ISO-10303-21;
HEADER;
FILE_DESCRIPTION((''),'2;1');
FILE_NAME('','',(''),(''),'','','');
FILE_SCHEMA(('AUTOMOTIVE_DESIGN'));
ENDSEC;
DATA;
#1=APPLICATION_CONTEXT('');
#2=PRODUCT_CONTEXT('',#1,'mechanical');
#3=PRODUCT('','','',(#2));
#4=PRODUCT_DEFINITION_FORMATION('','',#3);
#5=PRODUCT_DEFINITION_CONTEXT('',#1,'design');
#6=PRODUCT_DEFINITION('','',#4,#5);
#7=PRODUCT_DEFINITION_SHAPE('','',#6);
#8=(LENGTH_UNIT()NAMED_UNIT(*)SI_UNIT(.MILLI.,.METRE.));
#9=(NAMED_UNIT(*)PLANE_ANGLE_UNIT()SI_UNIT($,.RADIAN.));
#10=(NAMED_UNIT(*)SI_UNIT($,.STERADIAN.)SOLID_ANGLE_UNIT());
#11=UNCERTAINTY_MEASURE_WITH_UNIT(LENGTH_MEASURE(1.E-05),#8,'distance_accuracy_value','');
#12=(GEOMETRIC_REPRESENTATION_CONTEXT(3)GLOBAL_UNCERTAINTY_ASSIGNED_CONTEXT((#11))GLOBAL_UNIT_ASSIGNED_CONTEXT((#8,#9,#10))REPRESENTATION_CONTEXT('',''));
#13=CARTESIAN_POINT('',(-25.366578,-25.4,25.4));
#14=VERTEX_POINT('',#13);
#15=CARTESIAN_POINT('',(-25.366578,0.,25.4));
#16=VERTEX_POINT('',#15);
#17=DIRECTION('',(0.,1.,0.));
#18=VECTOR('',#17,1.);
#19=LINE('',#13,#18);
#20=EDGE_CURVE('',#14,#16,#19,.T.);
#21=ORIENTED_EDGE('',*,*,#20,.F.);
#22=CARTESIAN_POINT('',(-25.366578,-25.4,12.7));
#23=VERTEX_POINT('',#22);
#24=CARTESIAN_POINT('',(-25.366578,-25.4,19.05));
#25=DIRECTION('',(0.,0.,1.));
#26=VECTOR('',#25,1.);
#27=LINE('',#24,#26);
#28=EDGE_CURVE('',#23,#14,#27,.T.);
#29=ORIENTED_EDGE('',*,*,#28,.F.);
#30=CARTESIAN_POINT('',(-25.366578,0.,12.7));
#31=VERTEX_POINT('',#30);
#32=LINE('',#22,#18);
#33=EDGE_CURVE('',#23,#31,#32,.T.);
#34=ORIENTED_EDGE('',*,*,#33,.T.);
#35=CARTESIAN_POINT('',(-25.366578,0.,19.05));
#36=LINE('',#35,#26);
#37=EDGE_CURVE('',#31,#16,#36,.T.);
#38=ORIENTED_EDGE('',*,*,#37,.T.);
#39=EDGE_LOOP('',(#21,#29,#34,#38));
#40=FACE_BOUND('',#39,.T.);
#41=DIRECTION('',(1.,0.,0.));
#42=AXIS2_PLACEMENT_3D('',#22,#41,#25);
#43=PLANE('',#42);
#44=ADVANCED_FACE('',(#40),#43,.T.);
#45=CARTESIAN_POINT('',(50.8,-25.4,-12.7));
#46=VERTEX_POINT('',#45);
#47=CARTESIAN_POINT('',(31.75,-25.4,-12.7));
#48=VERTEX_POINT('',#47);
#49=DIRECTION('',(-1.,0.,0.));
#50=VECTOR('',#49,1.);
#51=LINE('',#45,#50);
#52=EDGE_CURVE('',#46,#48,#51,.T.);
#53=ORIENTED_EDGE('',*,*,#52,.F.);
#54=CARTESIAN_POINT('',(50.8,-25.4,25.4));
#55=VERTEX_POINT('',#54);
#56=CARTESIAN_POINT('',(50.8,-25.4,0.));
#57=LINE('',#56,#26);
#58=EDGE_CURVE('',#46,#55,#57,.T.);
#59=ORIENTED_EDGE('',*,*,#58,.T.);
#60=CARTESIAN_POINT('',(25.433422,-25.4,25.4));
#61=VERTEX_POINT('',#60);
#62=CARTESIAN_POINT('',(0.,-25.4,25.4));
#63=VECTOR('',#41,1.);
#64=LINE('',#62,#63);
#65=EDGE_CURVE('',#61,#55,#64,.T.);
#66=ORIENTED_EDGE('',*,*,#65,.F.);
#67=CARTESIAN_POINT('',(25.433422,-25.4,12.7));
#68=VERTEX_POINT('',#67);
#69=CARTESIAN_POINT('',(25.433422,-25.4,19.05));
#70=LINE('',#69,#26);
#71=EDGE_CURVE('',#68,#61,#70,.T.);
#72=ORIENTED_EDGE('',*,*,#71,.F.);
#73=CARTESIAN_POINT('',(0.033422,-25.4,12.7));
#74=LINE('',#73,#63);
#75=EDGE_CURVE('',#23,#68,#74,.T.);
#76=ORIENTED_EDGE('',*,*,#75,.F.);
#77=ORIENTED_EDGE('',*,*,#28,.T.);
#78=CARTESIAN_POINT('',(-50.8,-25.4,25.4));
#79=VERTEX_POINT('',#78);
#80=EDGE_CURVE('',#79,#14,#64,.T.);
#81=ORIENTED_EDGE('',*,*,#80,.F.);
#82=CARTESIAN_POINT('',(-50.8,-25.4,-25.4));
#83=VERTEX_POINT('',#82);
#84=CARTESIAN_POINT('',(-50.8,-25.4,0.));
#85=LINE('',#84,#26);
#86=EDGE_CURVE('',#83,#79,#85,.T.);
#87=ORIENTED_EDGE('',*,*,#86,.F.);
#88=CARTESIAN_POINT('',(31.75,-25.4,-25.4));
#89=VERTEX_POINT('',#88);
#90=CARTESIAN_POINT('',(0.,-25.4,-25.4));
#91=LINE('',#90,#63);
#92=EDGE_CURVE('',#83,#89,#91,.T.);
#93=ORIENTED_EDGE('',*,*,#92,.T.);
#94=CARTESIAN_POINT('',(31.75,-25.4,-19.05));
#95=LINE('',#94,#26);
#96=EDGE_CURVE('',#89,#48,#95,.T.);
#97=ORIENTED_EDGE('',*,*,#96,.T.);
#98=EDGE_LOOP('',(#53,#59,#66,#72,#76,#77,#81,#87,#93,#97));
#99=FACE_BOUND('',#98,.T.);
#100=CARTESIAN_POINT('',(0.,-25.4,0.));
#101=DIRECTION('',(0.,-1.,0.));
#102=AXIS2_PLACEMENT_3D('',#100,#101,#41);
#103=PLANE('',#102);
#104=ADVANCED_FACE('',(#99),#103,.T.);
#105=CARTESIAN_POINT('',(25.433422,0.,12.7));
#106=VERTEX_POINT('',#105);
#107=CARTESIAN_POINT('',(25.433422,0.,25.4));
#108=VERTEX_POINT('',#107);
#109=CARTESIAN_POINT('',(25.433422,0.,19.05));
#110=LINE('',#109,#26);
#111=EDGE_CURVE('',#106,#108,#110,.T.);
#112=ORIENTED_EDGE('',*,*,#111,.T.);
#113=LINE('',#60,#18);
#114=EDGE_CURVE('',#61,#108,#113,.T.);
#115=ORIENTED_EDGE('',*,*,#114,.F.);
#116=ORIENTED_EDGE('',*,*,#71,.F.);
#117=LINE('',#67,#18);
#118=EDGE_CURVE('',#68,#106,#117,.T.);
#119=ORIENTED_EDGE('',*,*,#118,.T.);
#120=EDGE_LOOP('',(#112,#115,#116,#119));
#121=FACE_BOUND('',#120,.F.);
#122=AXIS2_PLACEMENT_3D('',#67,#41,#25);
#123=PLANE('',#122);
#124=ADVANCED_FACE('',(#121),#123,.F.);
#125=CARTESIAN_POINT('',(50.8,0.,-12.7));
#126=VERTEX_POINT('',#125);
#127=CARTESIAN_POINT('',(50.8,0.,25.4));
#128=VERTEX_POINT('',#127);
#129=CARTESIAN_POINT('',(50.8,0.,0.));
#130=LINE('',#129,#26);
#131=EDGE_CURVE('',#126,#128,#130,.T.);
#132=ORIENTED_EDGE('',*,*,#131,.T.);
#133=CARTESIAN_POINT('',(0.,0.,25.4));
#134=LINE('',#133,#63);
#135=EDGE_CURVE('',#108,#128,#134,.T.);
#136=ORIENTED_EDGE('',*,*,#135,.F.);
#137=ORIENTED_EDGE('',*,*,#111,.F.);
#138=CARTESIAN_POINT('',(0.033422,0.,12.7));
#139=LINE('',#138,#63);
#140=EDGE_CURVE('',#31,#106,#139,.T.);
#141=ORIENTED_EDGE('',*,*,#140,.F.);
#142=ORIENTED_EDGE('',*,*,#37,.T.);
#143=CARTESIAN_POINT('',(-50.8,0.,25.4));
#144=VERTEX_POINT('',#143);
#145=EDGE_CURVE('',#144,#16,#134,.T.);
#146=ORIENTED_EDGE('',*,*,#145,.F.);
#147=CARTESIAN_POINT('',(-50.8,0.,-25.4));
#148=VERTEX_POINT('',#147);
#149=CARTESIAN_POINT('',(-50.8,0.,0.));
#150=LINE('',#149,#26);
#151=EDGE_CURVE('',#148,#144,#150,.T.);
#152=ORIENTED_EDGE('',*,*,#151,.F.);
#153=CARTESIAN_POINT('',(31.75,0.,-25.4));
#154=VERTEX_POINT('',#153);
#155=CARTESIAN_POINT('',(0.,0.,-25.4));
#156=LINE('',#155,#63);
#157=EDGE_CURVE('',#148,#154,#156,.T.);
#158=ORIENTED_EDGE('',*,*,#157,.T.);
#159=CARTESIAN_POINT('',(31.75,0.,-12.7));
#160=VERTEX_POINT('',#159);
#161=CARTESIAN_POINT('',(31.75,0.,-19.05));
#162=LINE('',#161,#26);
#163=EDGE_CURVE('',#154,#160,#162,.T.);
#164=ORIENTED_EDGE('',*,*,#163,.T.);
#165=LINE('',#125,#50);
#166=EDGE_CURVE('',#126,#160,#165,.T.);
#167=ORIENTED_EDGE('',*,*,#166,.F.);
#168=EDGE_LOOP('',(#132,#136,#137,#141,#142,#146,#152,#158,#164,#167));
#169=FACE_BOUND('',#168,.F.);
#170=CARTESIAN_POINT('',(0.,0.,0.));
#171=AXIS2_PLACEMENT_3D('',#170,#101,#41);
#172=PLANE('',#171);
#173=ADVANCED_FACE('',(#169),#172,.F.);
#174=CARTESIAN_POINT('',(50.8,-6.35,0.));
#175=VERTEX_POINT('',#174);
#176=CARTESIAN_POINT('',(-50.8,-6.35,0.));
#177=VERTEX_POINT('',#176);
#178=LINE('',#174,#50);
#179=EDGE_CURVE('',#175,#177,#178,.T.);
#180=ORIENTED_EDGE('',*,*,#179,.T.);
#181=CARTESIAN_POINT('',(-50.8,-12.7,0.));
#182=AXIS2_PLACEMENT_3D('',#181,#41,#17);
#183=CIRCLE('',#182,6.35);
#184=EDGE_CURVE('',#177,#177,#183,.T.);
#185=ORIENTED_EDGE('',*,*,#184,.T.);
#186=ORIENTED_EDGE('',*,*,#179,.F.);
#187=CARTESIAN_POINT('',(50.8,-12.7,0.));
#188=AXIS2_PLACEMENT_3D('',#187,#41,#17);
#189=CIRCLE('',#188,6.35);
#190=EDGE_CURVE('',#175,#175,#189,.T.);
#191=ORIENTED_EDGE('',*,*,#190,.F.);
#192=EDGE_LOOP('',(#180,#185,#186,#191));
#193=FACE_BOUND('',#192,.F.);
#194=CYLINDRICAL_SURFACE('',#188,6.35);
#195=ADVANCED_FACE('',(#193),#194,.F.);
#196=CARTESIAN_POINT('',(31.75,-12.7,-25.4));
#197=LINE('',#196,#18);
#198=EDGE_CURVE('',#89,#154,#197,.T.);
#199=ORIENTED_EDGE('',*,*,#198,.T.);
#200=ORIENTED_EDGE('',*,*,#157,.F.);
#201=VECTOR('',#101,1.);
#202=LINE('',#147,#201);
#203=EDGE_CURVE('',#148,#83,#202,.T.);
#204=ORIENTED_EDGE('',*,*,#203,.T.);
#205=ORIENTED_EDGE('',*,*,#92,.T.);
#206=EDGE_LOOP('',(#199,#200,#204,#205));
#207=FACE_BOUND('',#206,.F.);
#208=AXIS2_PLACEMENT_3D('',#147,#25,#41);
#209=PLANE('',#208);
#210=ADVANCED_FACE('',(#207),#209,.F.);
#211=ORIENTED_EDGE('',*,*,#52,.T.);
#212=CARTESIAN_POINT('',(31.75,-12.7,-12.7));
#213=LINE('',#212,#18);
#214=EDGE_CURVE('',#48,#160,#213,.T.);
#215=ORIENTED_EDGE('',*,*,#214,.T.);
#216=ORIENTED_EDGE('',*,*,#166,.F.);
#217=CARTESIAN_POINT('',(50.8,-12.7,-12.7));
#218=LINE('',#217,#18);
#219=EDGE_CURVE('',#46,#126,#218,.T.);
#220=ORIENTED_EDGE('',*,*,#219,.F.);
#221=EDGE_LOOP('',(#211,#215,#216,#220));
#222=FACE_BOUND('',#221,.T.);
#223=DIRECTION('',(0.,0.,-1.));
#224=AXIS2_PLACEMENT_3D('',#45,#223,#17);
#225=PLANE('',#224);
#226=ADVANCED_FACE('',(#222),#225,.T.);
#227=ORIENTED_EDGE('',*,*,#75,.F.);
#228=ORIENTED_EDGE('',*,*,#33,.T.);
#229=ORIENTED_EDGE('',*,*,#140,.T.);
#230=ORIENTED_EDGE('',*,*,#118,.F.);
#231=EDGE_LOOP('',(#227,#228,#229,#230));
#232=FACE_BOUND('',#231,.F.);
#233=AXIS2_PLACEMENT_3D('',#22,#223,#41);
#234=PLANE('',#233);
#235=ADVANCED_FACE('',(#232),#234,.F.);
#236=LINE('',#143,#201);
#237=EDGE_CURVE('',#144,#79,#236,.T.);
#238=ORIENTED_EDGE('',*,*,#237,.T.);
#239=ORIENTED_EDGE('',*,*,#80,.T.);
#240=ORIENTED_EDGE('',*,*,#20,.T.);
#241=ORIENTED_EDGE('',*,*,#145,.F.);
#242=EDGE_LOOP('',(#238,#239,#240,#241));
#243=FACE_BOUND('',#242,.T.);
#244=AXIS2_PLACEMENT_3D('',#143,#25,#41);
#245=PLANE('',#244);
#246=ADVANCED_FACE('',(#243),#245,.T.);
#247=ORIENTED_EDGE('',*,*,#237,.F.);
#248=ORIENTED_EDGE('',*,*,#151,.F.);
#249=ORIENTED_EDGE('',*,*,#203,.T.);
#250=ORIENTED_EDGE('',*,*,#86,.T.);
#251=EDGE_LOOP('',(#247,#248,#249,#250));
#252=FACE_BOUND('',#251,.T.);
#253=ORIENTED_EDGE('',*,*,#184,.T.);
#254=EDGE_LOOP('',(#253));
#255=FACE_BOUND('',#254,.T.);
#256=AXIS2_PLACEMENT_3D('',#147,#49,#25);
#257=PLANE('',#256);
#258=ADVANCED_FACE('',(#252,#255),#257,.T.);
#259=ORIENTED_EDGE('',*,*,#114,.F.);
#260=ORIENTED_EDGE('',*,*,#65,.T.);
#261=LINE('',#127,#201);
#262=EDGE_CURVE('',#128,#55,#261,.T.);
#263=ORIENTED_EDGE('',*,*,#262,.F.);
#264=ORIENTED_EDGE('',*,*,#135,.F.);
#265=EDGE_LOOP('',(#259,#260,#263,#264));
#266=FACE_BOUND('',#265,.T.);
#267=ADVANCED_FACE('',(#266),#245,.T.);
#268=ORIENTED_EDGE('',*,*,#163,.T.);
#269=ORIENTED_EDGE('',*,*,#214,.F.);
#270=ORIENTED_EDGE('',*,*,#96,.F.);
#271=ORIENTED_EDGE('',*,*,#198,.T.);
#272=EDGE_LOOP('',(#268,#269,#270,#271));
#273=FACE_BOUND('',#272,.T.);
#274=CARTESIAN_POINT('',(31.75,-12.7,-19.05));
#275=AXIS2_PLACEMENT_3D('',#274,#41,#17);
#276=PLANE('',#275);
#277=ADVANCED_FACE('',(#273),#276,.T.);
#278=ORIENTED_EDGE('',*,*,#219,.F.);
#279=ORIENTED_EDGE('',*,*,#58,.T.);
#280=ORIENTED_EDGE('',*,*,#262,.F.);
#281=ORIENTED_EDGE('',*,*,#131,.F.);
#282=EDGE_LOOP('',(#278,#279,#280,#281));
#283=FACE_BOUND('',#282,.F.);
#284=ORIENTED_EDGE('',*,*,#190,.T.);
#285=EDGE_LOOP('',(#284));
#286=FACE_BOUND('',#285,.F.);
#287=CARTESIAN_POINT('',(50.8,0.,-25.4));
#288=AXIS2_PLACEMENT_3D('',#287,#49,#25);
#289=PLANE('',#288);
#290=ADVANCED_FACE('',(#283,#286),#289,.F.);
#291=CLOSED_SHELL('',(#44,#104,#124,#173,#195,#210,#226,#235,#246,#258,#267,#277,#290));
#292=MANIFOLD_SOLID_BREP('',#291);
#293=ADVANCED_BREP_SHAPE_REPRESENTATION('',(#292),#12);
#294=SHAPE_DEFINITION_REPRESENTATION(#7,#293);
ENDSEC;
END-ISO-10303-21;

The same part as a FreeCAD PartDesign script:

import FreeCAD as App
import Part
import Sketcher
from FreeCAD import Vector
Q = App.Units.Quantity

doc = App.newDocument("Part")
body = doc.addObject("PartDesign::Body", "Body")

sketch1 = body.newObject("Sketcher::SketchObject", "Sketch")
sketch1.AttachmentSupport = (doc.getObject("XZ_Plane"), [""])
sketch1.MapMode = "FlatFace"
sketch1.addGeometry([
    Part.LineSegment(Vector(-51, 25, 0), Vector(-51, -25, 0)),
    Part.LineSegment(Vector(-51, -25, 0), Vector(51, -25, 0)),
    Part.LineSegment(Vector(51, -25, 0), Vector(51, 25, 0)),
    Part.LineSegment(Vector(51, 25, 0), Vector(-51, 25, 0)),
], False)
sketch1.addConstraint([
    Sketcher.Constraint("Coincident", 0, 2, 1, 1),
    Sketcher.Constraint("Coincident", 1, 2, 2, 1),
    Sketcher.Constraint("Coincident", 2, 2, 3, 1),
    Sketcher.Constraint("Coincident", 3, 2, 0, 1),
    Sketcher.Constraint("Vertical", 0),
    Sketcher.Constraint("Horizontal", 1),
    Sketcher.Constraint("Vertical", 2),
    Sketcher.Constraint("Horizontal", 3),
    Sketcher.Constraint("Symmetric", 0, 2, 2, 2, -1, 1),
    Sketcher.Constraint("DistanceX", 1, 1, 1, 2, Q("4 in")),
    Sketcher.Constraint("DistanceY", 0, 2, 0, 1, Q("2 in")),
])
pad1 = body.newObject("PartDesign::Pad", "Pad")
pad1.Profile = sketch1
pad1.Length = Q("1 in")

sketch2 = body.newObject("Sketcher::SketchObject", "Sketch001")
sketch2.AttachmentSupport = (doc.getObject("XZ_Plane"), [""])
sketch2.MapMode = "FlatFace"
sketch2.AttachmentOffset = App.Placement(Vector(0, 0, 1 * 25.4), App.Rotation())
sketch2.addGeometry([
    Part.LineSegment(Vector(-25, 25, 0), Vector(-25, 13, 0)),
    Part.LineSegment(Vector(-25, 13, 0), Vector(25, 13, 0)),
    Part.LineSegment(Vector(25, 13, 0), Vector(25, 25, 0)),
    Part.LineSegment(Vector(25, 25, 0), Vector(-25, 25, 0)),
], False)
sketch2.addConstraint([
    Sketcher.Constraint("Coincident", 0, 2, 1, 1),
    Sketcher.Constraint("Coincident", 1, 2, 2, 1),
    Sketcher.Constraint("Coincident", 2, 2, 3, 1),
    Sketcher.Constraint("Coincident", 3, 2, 0, 1),
    Sketcher.Constraint("Vertical", 0),
    Sketcher.Constraint("Horizontal", 1),
    Sketcher.Constraint("Vertical", 2),
    Sketcher.Constraint("Horizontal", 3),
    Sketcher.Constraint("DistanceX", 1, 1, 1, 2, Q("2 in")),
    Sketcher.Constraint("DistanceY", 0, 2, 0, 1, Q("0.5 in")),
    Sketcher.Constraint("DistanceY", -1, 1, 2, 2, Q("1 in")),
    Sketcher.Constraint("DistanceX", 0, 2, -1, 1, Q("25.366578 mm")),
])
pocket1 = body.newObject("PartDesign::Pocket", "Pocket")
pocket1.Profile = sketch2
pocket1.Length = Q("1 in")

sketch3 = body.newObject("Sketcher::SketchObject", "Sketch002")
sketch3.AttachmentSupport = (doc.getObject("YZ_Plane"), [""])
sketch3.MapMode = "FlatFace"
sketch3.AttachmentOffset = App.Placement(Vector(0, 0, 2 * 25.4), App.Rotation())
sketch3.addGeometry([
    Part.LineSegment(Vector(-25, -13, 0), Vector(-25, -25, 0)),
    Part.LineSegment(Vector(-25, -25, 0), Vector(0, -25, 0)),
    Part.LineSegment(Vector(0, -25, 0), Vector(0, -13, 0)),
    Part.LineSegment(Vector(0, -13, 0), Vector(-25, -13, 0)),
], False)
sketch3.addConstraint([
    Sketcher.Constraint("Coincident", 0, 2, 1, 1),
    Sketcher.Constraint("Coincident", 1, 2, 2, 1),
    Sketcher.Constraint("Coincident", 2, 2, 3, 1),
    Sketcher.Constraint("Coincident", 3, 2, 0, 1),
    Sketcher.Constraint("Vertical", 0),
    Sketcher.Constraint("Horizontal", 1),
    Sketcher.Constraint("Vertical", 2),
    Sketcher.Constraint("Horizontal", 3),
    Sketcher.Constraint("PointOnObject", 1, 2, -2),
    Sketcher.Constraint("DistanceX", 1, 1, 1, 2, Q("1 in")),
    Sketcher.Constraint("DistanceY", 0, 2, 0, 1, Q("0.5 in")),
    Sketcher.Constraint("DistanceY", 0, 2, -1, 1, Q("1 in")),
])
pocket2 = body.newObject("PartDesign::Pocket", "Pocket001")
pocket2.Profile = sketch3
pocket2.Length = Q("0.75 in")

sketch4 = body.newObject("Sketcher::SketchObject", "Sketch003")
sketch4.AttachmentSupport = (doc.getObject("YZ_Plane"), [""])
sketch4.MapMode = "FlatFace"
sketch4.AttachmentOffset = App.Placement(Vector(0, 0, 2 * 25.4), App.Rotation())
sketch4.addGeometry(Part.Circle(Vector(-13, 0, 0), Vector(0, 0, 1), 6), False)
sketch4.addConstraint([
    Sketcher.Constraint("PointOnObject", 0, 3, -1),
    Sketcher.Constraint("Diameter", 0, Q("0.5 in")),
    Sketcher.Constraint("DistanceX", 0, 3, -1, 1, Q("0.5 in")),
])
pocket3 = body.newObject("PartDesign::Pocket", "Pocket002")
pocket3.Profile = sketch4
pocket3.Length = Q("4 in")

doc.recompute()
